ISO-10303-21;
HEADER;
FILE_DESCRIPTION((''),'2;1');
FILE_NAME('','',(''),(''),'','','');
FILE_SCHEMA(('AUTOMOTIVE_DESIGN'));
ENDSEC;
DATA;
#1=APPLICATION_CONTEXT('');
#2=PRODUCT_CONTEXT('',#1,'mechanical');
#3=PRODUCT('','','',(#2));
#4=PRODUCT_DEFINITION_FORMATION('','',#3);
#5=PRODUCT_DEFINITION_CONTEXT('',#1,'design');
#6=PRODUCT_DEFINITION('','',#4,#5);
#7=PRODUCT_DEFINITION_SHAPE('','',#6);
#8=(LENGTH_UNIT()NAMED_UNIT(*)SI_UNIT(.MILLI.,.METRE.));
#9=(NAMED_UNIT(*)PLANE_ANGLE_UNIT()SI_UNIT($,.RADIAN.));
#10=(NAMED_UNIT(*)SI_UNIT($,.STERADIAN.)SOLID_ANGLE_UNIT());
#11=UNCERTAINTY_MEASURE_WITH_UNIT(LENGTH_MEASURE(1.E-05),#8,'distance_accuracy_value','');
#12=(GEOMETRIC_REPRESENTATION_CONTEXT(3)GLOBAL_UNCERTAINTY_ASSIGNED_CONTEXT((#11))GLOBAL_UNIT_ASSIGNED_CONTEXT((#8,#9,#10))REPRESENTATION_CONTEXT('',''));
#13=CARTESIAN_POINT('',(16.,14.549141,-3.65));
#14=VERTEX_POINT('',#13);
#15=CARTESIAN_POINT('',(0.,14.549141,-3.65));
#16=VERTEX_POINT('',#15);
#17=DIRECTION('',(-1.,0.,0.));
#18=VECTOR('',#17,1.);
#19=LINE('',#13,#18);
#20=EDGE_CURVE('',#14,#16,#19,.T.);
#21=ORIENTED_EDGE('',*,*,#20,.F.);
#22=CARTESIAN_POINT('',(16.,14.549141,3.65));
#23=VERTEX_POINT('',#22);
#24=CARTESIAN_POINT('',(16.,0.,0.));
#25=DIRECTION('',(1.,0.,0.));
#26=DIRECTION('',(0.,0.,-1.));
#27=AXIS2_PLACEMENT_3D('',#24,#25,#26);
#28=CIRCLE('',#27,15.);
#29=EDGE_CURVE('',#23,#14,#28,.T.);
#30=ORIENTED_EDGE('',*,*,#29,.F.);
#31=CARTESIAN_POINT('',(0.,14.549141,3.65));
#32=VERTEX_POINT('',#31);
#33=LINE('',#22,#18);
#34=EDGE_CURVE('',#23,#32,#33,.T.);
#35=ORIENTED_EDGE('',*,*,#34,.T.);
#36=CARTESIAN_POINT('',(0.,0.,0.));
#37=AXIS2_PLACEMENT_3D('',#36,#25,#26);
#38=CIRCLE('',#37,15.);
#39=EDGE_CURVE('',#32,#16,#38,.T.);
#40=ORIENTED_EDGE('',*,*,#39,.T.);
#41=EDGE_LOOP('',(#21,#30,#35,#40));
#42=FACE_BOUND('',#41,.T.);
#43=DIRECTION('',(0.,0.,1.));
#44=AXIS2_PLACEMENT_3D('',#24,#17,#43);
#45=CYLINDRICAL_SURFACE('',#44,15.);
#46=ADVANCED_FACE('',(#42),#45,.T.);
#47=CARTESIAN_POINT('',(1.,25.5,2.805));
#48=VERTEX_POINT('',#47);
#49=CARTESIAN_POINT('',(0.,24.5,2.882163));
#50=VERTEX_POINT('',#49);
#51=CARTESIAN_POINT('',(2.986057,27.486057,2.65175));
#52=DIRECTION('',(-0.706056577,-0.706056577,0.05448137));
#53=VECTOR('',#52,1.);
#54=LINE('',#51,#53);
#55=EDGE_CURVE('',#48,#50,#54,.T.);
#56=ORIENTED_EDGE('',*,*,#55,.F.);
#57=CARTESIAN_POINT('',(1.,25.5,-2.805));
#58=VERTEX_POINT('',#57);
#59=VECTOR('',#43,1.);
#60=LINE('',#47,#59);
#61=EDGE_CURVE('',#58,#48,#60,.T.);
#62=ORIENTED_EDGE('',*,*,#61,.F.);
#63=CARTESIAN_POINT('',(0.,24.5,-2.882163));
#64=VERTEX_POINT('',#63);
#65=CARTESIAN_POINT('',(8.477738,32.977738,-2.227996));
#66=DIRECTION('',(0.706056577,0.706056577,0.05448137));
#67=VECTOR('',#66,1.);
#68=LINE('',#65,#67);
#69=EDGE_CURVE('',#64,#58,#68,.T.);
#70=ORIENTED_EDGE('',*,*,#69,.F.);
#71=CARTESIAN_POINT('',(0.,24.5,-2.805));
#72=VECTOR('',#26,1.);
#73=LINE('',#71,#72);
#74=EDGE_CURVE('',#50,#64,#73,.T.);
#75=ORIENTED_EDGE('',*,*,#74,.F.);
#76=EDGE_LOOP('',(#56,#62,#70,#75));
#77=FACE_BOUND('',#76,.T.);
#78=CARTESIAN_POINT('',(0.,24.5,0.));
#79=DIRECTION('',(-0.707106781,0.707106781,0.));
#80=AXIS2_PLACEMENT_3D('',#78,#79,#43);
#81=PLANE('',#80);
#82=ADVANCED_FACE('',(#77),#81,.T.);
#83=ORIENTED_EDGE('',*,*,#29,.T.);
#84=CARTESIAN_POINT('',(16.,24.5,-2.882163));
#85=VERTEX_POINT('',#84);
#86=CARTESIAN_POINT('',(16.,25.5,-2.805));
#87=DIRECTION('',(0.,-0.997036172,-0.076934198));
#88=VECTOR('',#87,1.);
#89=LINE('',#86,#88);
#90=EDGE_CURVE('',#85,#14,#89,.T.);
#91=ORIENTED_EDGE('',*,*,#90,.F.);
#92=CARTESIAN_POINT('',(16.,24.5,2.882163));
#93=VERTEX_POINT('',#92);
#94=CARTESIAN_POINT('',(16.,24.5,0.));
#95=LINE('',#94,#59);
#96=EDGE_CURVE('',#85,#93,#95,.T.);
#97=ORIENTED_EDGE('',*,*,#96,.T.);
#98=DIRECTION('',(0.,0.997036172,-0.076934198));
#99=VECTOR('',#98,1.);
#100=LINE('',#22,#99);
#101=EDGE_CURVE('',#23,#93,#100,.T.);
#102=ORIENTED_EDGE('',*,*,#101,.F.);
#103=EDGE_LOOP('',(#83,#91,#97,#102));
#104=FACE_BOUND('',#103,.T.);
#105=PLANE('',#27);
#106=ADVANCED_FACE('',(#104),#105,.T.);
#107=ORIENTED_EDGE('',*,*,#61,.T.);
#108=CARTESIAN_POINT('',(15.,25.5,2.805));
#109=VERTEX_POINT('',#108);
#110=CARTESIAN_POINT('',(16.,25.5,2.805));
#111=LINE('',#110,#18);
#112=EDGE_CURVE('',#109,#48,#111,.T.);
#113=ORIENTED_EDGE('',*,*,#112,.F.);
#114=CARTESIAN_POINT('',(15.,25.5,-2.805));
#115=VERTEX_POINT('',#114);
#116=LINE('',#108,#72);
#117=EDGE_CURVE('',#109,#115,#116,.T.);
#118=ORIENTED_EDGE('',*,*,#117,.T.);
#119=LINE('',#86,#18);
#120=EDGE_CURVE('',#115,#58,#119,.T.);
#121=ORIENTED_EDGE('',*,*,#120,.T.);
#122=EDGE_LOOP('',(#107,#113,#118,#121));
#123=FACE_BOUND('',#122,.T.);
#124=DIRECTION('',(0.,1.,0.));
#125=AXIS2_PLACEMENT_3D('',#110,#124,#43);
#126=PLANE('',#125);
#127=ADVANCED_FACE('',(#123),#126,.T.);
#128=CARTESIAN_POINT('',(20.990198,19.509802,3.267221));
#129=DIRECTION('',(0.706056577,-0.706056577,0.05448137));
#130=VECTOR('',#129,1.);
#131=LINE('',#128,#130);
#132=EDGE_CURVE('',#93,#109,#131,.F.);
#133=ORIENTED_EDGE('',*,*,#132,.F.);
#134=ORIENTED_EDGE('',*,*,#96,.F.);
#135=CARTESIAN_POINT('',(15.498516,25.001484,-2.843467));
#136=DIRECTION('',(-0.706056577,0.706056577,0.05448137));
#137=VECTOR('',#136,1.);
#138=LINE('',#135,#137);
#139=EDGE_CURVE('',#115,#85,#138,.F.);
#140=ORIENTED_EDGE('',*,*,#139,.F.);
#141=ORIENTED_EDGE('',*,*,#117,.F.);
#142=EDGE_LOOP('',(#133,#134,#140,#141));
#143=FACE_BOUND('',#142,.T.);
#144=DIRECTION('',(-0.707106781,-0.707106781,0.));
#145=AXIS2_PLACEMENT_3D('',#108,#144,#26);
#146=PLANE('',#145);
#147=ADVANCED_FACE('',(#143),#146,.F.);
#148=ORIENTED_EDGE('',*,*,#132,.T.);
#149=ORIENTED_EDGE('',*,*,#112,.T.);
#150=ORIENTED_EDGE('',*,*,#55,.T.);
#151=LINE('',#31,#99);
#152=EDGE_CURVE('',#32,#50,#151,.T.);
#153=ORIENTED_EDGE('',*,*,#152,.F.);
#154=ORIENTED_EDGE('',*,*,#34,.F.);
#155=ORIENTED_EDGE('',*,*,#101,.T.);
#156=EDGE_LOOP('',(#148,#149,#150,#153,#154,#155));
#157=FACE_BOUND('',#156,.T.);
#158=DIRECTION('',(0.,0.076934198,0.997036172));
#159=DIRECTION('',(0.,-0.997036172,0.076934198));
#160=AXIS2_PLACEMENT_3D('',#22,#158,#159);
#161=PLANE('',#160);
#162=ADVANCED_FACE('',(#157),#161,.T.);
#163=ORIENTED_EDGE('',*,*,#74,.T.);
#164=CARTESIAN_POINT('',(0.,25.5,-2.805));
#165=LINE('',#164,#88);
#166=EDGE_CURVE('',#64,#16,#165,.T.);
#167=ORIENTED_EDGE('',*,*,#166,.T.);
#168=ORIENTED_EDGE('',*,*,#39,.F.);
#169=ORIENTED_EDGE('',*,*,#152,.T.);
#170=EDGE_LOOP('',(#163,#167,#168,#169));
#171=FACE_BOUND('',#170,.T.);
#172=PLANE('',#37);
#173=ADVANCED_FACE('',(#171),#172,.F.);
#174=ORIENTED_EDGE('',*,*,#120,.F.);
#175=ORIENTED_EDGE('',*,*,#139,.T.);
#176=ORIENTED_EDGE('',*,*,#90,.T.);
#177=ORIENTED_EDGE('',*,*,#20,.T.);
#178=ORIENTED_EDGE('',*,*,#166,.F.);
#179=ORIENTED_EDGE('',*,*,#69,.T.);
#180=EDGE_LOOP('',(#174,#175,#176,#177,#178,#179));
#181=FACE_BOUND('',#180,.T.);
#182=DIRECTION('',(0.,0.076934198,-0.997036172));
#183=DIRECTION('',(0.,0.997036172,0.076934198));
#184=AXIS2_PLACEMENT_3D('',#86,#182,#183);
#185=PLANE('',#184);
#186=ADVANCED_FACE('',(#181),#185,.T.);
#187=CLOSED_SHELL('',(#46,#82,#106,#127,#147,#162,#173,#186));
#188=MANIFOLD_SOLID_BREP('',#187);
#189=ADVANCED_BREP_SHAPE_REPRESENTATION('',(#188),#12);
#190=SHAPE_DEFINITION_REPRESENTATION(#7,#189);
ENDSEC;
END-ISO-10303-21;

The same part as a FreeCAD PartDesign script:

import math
import FreeCAD as App
import Part
import Sketcher
from FreeCAD import Vector
Q = App.Units.Quantity


def edges_at(feature, points):
    """Names of the edges that pass closest to the given points."""
    edges = feature.Shape.Edges
    near = lambda p: min(range(len(edges)), key=lambda i: edges[i].distToShape(Part.Vertex(*p))[0])
    return sorted({f"Edge{near(p) + 1}" for p in points})

doc = App.newDocument("Part")
body = doc.addObject("PartDesign::Body", "Body")

sketch1 = body.newObject("Sketcher::SketchObject", "Sketch")
sketch1.AttachmentSupport = (doc.getObject("YZ_Plane"), [""])
sketch1.MapMode = "FlatFace"
sketch1.addGeometry([
    Part.LineSegment(Vector(26, 3, 0), Vector(15, 4, 0)),
    Part.ArcOfCircle(Part.Circle(Vector(0, 0, 0), Vector(0, 0, 1), 15), math.radians(14), math.radians(346)),
    Part.LineSegment(Vector(15, -4, 0), Vector(26, -3, 0)),
    Part.LineSegment(Vector(26, -3, 0), Vector(26, 3, 0)),
], False)
sketch1.addConstraint([
    Sketcher.Constraint("Coincident", 0, 2, 1, 1),
    Sketcher.Constraint("Coincident", 1, 2, 2, 1),
    Sketcher.Constraint("Coincident", 2, 2, 3, 1),
    Sketcher.Constraint("Coincident", 3, 2, 0, 1),
    Sketcher.Constraint("Vertical", 3),
    Sketcher.Constraint("Coincident", 1, 3, -1, 1),
    Sketcher.Constraint("Vertical", 0, 2, 1, 2),
    Sketcher.Constraint("Equal", 0, 2),
    Sketcher.Constraint("Radius", 1, Q("15 mm")),
    Sketcher.Constraint("DistanceY", 3, 1, 3, 2, Q("5.61 mm")),
    Sketcher.Constraint("DistanceX", -1, 1, 2, 2, Q("25.5 mm")),
    Sketcher.Constraint("DistanceY", 1, 2, 0, 2, Q("7.3 mm")),
])
pad1 = body.newObject("PartDesign::Pad", "Pad")
pad1.Profile = sketch1
pad1.Length = 16
doc.recompute()

chamfer = body.newObject("PartDesign::Chamfer", "Chamfer")
chamfer.Base = (pad1, edges_at(pad1, [(0, 25.5, 0), (16, 25.5, 0)]))
chamfer.Size = 1

doc.recompute()
